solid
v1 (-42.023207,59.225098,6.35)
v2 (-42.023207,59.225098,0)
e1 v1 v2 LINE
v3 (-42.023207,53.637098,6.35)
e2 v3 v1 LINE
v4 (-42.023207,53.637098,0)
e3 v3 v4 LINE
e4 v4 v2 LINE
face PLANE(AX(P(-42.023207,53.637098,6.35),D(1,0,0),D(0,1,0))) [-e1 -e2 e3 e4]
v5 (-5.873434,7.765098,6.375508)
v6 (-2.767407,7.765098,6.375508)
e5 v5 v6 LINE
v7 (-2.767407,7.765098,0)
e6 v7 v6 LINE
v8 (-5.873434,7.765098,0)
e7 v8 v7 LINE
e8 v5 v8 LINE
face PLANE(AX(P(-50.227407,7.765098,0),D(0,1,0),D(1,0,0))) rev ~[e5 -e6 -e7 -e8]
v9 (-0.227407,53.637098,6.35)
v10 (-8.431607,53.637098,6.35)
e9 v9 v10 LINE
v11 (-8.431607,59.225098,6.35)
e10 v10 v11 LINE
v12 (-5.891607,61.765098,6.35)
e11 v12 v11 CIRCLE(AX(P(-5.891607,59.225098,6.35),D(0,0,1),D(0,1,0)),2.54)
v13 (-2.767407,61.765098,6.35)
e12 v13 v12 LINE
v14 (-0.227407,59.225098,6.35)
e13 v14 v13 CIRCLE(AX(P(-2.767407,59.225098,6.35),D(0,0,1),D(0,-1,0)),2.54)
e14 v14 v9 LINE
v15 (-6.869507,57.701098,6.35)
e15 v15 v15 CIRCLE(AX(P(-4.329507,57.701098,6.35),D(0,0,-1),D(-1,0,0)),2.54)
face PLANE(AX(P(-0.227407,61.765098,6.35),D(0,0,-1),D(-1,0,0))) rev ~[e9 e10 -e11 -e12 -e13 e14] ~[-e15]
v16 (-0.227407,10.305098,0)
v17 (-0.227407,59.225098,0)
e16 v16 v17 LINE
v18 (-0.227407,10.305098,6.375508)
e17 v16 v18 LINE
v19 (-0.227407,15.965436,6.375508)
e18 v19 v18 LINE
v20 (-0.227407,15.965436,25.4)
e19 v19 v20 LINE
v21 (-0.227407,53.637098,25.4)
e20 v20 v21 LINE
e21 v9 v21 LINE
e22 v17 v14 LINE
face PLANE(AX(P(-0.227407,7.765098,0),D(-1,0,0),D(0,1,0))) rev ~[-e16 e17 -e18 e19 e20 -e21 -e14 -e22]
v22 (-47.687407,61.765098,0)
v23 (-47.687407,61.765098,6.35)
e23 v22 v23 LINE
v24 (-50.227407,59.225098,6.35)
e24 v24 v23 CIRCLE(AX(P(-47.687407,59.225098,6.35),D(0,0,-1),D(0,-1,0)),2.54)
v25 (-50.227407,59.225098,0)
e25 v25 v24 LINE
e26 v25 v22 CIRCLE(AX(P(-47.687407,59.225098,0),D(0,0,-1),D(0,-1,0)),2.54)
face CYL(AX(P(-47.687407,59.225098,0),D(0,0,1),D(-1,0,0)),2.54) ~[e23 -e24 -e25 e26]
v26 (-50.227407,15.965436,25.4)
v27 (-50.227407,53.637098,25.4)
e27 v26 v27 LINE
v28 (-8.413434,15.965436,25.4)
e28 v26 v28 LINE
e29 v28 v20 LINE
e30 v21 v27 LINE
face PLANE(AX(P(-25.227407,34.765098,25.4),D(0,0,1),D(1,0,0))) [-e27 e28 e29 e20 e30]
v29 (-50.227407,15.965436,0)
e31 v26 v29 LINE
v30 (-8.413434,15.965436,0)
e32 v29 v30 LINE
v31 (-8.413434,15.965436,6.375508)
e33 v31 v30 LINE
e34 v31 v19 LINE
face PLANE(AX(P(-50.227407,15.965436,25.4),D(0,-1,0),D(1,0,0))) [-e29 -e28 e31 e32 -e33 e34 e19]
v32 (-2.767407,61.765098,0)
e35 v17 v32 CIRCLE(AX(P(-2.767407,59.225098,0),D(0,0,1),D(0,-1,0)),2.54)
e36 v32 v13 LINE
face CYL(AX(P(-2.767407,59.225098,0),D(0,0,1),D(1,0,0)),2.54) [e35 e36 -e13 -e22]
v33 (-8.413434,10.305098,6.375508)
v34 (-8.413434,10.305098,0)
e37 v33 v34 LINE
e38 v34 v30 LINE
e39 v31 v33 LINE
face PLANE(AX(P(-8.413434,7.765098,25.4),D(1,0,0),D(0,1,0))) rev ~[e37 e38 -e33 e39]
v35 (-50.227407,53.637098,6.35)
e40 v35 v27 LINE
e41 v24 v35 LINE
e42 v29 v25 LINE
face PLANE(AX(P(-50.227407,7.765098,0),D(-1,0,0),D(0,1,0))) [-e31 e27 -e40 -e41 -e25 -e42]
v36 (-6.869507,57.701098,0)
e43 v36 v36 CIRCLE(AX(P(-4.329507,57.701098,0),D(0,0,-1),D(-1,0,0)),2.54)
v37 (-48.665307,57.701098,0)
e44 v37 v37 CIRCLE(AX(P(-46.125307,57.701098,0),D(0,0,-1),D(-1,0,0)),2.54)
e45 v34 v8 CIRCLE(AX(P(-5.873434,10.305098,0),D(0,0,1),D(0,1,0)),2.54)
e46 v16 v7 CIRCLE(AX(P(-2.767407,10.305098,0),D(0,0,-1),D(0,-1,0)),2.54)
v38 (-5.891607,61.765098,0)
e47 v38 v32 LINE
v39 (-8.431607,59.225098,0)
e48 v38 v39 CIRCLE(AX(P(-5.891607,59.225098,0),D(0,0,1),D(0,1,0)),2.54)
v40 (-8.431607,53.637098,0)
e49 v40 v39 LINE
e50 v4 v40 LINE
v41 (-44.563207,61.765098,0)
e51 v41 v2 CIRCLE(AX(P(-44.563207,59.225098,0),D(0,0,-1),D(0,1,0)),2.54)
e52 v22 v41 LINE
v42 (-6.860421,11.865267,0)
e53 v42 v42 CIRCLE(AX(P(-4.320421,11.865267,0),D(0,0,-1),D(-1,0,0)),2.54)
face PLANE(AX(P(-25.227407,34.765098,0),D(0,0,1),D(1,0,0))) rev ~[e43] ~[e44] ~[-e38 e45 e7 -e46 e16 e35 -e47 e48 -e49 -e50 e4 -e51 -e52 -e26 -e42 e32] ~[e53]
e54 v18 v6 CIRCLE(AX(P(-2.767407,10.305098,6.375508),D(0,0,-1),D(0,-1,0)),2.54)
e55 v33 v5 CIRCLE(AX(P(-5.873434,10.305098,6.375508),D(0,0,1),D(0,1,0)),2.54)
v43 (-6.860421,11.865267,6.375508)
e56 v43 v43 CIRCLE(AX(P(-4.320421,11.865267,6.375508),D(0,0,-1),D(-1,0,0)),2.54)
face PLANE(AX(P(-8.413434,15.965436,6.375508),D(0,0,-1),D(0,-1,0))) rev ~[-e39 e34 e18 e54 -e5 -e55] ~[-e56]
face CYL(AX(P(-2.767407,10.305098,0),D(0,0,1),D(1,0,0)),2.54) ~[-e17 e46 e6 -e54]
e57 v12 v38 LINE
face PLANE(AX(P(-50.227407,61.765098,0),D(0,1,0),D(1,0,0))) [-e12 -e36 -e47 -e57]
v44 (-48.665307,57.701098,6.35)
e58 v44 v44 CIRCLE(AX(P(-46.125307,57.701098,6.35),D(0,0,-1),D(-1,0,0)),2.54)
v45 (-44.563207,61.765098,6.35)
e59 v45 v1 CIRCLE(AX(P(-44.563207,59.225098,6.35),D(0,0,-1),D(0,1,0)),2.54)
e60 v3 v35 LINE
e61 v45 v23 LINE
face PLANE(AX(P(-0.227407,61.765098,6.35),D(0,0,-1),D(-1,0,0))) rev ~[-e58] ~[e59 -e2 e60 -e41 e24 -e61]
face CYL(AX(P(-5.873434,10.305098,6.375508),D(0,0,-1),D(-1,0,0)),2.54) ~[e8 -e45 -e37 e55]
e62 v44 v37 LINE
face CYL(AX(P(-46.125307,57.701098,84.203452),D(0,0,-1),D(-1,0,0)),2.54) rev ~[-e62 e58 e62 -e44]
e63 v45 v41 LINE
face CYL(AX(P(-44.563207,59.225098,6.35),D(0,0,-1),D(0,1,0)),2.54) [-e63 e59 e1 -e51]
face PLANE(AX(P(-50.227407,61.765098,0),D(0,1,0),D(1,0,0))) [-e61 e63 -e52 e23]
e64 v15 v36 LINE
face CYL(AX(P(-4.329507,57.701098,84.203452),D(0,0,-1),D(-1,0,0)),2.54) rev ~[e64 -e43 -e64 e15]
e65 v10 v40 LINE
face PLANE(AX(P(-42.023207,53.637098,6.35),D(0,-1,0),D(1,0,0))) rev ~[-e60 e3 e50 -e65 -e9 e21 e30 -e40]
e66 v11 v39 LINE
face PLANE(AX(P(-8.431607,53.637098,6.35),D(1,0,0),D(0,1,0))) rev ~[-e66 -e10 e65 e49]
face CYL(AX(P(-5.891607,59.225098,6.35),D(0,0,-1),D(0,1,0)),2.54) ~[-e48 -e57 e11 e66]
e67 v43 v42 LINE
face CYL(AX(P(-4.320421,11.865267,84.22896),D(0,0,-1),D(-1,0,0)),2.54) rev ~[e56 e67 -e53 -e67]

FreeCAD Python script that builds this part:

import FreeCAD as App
import Part
import Sketcher

V = App.Vector
Q = App.Units.Quantity


def edges_at(feature, points):
    """Names of the edges that pass closest to the given points."""
    edges = feature.Shape.Edges
    near = lambda p: min(range(len(edges)), key=lambda i: edges[i].distToShape(Part.Vertex(*p))[0])
    return sorted({f"Edge{near(p) + 1}" for p in points})


def add_polygon(sketch, points):
    """Adds a closed chain of lines whose ends are joined by coincident constraints."""
    first, n = sketch.GeometryCount, len(points)
    for a, b in zip(points, points[1:] + points[:1]):
        sketch.addGeometry(Part.LineSegment(App.Vector(*a, 0), App.Vector(*b, 0)), False)
    for i in range(n):
        sketch.addConstraint(Sketcher.Constraint("Coincident", first + i, 2, first + (i + 1) % n, 1))

doc = App.newDocument("Part")
body = doc.addObject("PartDesign::Body", "Body")

# Sketch on XY plane
sketch1 = body.newObject("Sketcher::SketchObject", "Sketch")
sketch1.AttachmentSupport = (doc.getObject("XY_Plane"), [""])
sketch1.MapMode = "FlatFace"
add_polygon(sketch1, [(-50, 62), (-50, 8), (0, 8), (0, 62)])  # lines 0-3
sketch1.addConstraint(Sketcher.Constraint("Vertical", 0))
sketch1.addConstraint(Sketcher.Constraint("Horizontal", 1))
sketch1.addConstraint(Sketcher.Constraint("Vertical", 2))
sketch1.addConstraint(Sketcher.Constraint("Horizontal", 3))
sketch1.addConstraint(Sketcher.Constraint("DistanceX", 1, 1, 1, 2, 50.0))
sketch1.addConstraint(Sketcher.Constraint("DistanceY", 0, 2, 0, 1, 54.0))
sketch1.addConstraint(Sketcher.Constraint("DistanceY", -1, 1, 0, 2, 7.765098))
sketch1.addConstraint(Sketcher.Constraint("DistanceX", 0, 2, -1, 1, 50.227407))
pad1 = body.newObject("PartDesign::Pad", "Pad")
pad1.Profile = sketch1
pad1.Length = Q("1 in")

# Sketch on XY plane
sketch2 = body.newObject("Sketcher::SketchObject", "Sketch001")
sketch2.AttachmentSupport = (doc.getObject("XY_Plane"), [""])
sketch2.MapMode = "FlatFace"
sketch2.AttachmentOffset = App.Placement(V(0, 0, 1 * 25.4), App.Rotation())
add_polygon(sketch2, [(-50, 16), (-50, 8), (-8, 8), (-8, 16)])  # lines 0-3
sketch2.addConstraint(Sketcher.Constraint("Vertical", 0))
sketch2.addConstraint(Sketcher.Constraint("Horizontal", 1))
sketch2.addConstraint(Sketcher.Constraint("Vertical", 2))
sketch2.addConstraint(Sketcher.Constraint("Horizontal", 3))
sketch2.addConstraint(Sketcher.Constraint("DistanceY", -1, 1, 0, 2, 7.765098))
sketch2.addConstraint(Sketcher.Constraint("DistanceX", 1, 1, 1, 2, 41.813973))
sketch2.addConstraint(Sketcher.Constraint("DistanceY", 0, 2, 0, 1, 8.200337))
sketch2.addConstraint(Sketcher.Constraint("DistanceX", 0, 2, -1, 1, 50.227407))
pocket1 = body.newObject("PartDesign::Pocket", "Pocket")
pocket1.Profile = sketch2
pocket1.Length = Q("2 in")

# Sketch on YZ plane
sketch3 = body.newObject("Sketcher::SketchObject", "Sketch002")
sketch3.AttachmentSupport = (doc.getObject("YZ_Plane"), [""])
sketch3.MapMode = "FlatFace"
sketch3.AttachmentOffset = App.Placement(V(0, 0, -8.413434), App.Rotation())
add_polygon(sketch3, [(16, 25), (16, 6), (8, 6), (8, 25)])  # lines 0-3
sketch3.addConstraint(Sketcher.Constraint("Vertical", 0))
sketch3.addConstraint(Sketcher.Constraint("Horizontal", 1))
sketch3.addConstraint(Sketcher.Constraint("Vertical", 2))
sketch3.addConstraint(Sketcher.Constraint("Horizontal", 3))
sketch3.addConstraint(Sketcher.Constraint("DistanceY", -1, 1, 2, 2, Q("1 in")))
sketch3.addConstraint(Sketcher.Constraint("DistanceY", 0, 2, 0, 1, 19.024492))
sketch3.addConstraint(Sketcher.Constraint("DistanceX", -1, 1, 1, 2, 7.765098))
sketch3.addConstraint(Sketcher.Constraint("DistanceX", 1, 2, 1, 1, 8.200337))
pocket2 = body.newObject("PartDesign::Pocket", "Pocket001")
pocket2.Profile = sketch3
pocket2.Length = Q("1 in")
pocket2.Reversed = True

# Sketch on XY plane
sketch4 = body.newObject("Sketcher::SketchObject", "Sketch003")
sketch4.AttachmentSupport = (doc.getObject("XY_Plane"), [""])
sketch4.MapMode = "FlatFace"
sketch4.AttachmentOffset = App.Placement(V(0, 0, 6.375508), App.Rotation())
sketch4.addGeometry(Part.Circle(V(-4.3, 11.9, 0), V(0, 0, 1), 2.5), False)
sketch4.addConstraint(Sketcher.Constraint("Diameter", 0, Q("0.2 in")))
sketch4.addConstraint(Sketcher.Constraint("DistanceX", 0, 3, -1, 1, 4.320421))
sketch4.addConstraint(Sketcher.Constraint("DistanceY", -1, 1, 0, 3, 11.865267))
doc.recompute()
hole = body.newObject("PartDesign::Hole", "Hole")
hole.Profile = sketch4
hole.ThreadType = "None"
hole.Diameter = Q("0.2 in")
hole.DepthType = "ThroughAll"
doc.recompute()

fillet = body.newObject("PartDesign::Fillet", "Fillet")
fillet.Base = (hole, edges_at(hole, [(-8.413, 7.765, 3.188), (-0.227, 7.765, 3.188)]))
fillet.Radius = Q("0.1 in")

# Sketch on XZ plane
sketch5 = body.newObject("Sketcher::SketchObject", "Sketch004")
sketch5.AttachmentSupport = (doc.getObject("XZ_Plane"), [""])
sketch5.MapMode = "FlatFace"
sketch5.AttachmentOffset = App.Placement(V(0, 0, -61.765098), App.Rotation())
add_polygon(sketch5, [(0, 25), (0, 6), (-50, 6), (-50, 25)])  # lines 0-3
sketch5.addConstraint(Sketcher.Constraint("Vertical", 0))
sketch5.addConstraint(Sketcher.Constraint("Horizontal", 1))
sketch5.addConstraint(Sketcher.Constraint("Vertical", 2))
sketch5.addConstraint(Sketcher.Constraint("Horizontal", 3))
sketch5.addConstraint(Sketcher.Constraint("DistanceY", -1, 1, 2, 2, Q("1 in")))
sketch5.addConstraint(Sketcher.Constraint("DistanceY", 0, 2, 0, 1, Q("0.75 in")))
sketch5.addConstraint(Sketcher.Constraint("DistanceX", 1, 2, 1, 1, 50.0))
sketch5.addConstraint(Sketcher.Constraint("DistanceX", 0, 2, -1, 1, 0.227407))
pocket3 = body.newObject("PartDesign::Pocket", "Pocket002")
pocket3.Profile = sketch5
pocket3.Length = Q("0.32 in")
pocket3.Reversed = True

# Sketch on XY plane
sketch6 = body.newObject("Sketcher::SketchObject", "Sketch005")
sketch6.AttachmentSupport = (doc.getObject("XY_Plane"), [""])
sketch6.MapMode = "FlatFace"
sketch6.AttachmentOffset = App.Placement(V(0, 0, 0.25 * 25.4), App.Rotation())
add_polygon(sketch6, [(-42, 62), (-42, 54), (-8, 54), (-8, 62)])  # lines 0-3
sketch6.addConstraint(Sketcher.Constraint("Vertical", 0))
sketch6.addConstraint(Sketcher.Constraint("Horizontal", 1))
sketch6.addConstraint(Sketcher.Constraint("Vertical", 2))
sketch6.addConstraint(Sketcher.Constraint("Horizontal", 3))
sketch6.addConstraint(Sketcher.Constraint("DistanceY", 0, 2, 0, 1, Q("0.32 in")))
sketch6.addConstraint(Sketcher.Constraint("DistanceX", 1, 1, 1, 2, 33.5916))
sketch6.addConstraint(Sketcher.Constraint("DistanceY", -1, 1, 0, 2, 53.637098))
sketch6.addConstraint(Sketcher.Constraint("DistanceX", 0, 2, -1, 1, 42.023207))
pocket4 = body.newObject("PartDesign::Pocket", "Pocket003")
pocket4.Profile = sketch6
pocket4.Length = Q("1 in")

# Sketch on XY plane
sketch7 = body.newObject("Sketcher::SketchObject", "Sketch006")
sketch7.AttachmentSupport = (doc.getObject("XY_Plane"), [""])
sketch7.MapMode = "FlatFace"
sketch7.AttachmentOffset = App.Placement(V(0, 0, 0.25 * 25.4), App.Rotation())
sketch7.addGeometry(Part.Circle(V(-4.3, 57.7, 0), V(0, 0, 1), 2.5), False)
sketch7.addConstraint(Sketcher.Constraint("Diameter", 0, Q("0.2 in")))
sketch7.addConstraint(Sketcher.Constraint("DistanceY", -1, 1, 0, 3, 57.701098))
sketch7.addConstraint(Sketcher.Constraint("DistanceX", 0, 3, -1, 1, 4.329507))
doc.recompute()
hole2 = body.newObject("PartDesign::Hole", "Hole001")
hole2.Profile = sketch7
hole2.ThreadType = "None"
hole2.Diameter = Q("0.2 in")
hole2.DepthType = "ThroughAll"

# Sketch on XY plane
sketch8 = body.newObject("Sketcher::SketchObject", "Sketch007")
sketch8.AttachmentSupport = (doc.getObject("XY_Plane"), [""])
sketch8.MapMode = "FlatFace"
sketch8.AttachmentOffset = App.Placement(V(0, 0, 0.25 * 25.4), App.Rotation())
sketch8.addGeometry(Part.Circle(V(-46.1, 57.7, 0), V(0, 0, 1), 2.5), False)
sketch8.addConstraint(Sketcher.Constraint("Diameter", 0, Q("0.2 in")))
sketch8.addConstraint(Sketcher.Constraint("DistanceY", -1, 1, 0, 3, 57.701098))
sketch8.addConstraint(Sketcher.Constraint("DistanceX", 0, 3, -1, 1, 46.125307))
doc.recompute()
hole3 = body.newObject("PartDesign::Hole", "Hole002")
hole3.Profile = sketch8
hole3.ThreadType = "None"
hole3.Diameter = Q("0.2 in")
hole3.DepthType = "ThroughAll"
doc.recompute()

fillet2 = body.newObject("PartDesign::Fillet", "Fillet001")
fillet2.Base = (hole3, edges_at(hole3, [
    (-50.227, 61.765, 3.175),
    (-42.023, 61.765, 3.175),
    (-8.432, 61.765, 3.175),
    (-0.227, 61.765, 3.175),
]))
fillet2.Radius = Q("0.1 in")

doc.recompute()
